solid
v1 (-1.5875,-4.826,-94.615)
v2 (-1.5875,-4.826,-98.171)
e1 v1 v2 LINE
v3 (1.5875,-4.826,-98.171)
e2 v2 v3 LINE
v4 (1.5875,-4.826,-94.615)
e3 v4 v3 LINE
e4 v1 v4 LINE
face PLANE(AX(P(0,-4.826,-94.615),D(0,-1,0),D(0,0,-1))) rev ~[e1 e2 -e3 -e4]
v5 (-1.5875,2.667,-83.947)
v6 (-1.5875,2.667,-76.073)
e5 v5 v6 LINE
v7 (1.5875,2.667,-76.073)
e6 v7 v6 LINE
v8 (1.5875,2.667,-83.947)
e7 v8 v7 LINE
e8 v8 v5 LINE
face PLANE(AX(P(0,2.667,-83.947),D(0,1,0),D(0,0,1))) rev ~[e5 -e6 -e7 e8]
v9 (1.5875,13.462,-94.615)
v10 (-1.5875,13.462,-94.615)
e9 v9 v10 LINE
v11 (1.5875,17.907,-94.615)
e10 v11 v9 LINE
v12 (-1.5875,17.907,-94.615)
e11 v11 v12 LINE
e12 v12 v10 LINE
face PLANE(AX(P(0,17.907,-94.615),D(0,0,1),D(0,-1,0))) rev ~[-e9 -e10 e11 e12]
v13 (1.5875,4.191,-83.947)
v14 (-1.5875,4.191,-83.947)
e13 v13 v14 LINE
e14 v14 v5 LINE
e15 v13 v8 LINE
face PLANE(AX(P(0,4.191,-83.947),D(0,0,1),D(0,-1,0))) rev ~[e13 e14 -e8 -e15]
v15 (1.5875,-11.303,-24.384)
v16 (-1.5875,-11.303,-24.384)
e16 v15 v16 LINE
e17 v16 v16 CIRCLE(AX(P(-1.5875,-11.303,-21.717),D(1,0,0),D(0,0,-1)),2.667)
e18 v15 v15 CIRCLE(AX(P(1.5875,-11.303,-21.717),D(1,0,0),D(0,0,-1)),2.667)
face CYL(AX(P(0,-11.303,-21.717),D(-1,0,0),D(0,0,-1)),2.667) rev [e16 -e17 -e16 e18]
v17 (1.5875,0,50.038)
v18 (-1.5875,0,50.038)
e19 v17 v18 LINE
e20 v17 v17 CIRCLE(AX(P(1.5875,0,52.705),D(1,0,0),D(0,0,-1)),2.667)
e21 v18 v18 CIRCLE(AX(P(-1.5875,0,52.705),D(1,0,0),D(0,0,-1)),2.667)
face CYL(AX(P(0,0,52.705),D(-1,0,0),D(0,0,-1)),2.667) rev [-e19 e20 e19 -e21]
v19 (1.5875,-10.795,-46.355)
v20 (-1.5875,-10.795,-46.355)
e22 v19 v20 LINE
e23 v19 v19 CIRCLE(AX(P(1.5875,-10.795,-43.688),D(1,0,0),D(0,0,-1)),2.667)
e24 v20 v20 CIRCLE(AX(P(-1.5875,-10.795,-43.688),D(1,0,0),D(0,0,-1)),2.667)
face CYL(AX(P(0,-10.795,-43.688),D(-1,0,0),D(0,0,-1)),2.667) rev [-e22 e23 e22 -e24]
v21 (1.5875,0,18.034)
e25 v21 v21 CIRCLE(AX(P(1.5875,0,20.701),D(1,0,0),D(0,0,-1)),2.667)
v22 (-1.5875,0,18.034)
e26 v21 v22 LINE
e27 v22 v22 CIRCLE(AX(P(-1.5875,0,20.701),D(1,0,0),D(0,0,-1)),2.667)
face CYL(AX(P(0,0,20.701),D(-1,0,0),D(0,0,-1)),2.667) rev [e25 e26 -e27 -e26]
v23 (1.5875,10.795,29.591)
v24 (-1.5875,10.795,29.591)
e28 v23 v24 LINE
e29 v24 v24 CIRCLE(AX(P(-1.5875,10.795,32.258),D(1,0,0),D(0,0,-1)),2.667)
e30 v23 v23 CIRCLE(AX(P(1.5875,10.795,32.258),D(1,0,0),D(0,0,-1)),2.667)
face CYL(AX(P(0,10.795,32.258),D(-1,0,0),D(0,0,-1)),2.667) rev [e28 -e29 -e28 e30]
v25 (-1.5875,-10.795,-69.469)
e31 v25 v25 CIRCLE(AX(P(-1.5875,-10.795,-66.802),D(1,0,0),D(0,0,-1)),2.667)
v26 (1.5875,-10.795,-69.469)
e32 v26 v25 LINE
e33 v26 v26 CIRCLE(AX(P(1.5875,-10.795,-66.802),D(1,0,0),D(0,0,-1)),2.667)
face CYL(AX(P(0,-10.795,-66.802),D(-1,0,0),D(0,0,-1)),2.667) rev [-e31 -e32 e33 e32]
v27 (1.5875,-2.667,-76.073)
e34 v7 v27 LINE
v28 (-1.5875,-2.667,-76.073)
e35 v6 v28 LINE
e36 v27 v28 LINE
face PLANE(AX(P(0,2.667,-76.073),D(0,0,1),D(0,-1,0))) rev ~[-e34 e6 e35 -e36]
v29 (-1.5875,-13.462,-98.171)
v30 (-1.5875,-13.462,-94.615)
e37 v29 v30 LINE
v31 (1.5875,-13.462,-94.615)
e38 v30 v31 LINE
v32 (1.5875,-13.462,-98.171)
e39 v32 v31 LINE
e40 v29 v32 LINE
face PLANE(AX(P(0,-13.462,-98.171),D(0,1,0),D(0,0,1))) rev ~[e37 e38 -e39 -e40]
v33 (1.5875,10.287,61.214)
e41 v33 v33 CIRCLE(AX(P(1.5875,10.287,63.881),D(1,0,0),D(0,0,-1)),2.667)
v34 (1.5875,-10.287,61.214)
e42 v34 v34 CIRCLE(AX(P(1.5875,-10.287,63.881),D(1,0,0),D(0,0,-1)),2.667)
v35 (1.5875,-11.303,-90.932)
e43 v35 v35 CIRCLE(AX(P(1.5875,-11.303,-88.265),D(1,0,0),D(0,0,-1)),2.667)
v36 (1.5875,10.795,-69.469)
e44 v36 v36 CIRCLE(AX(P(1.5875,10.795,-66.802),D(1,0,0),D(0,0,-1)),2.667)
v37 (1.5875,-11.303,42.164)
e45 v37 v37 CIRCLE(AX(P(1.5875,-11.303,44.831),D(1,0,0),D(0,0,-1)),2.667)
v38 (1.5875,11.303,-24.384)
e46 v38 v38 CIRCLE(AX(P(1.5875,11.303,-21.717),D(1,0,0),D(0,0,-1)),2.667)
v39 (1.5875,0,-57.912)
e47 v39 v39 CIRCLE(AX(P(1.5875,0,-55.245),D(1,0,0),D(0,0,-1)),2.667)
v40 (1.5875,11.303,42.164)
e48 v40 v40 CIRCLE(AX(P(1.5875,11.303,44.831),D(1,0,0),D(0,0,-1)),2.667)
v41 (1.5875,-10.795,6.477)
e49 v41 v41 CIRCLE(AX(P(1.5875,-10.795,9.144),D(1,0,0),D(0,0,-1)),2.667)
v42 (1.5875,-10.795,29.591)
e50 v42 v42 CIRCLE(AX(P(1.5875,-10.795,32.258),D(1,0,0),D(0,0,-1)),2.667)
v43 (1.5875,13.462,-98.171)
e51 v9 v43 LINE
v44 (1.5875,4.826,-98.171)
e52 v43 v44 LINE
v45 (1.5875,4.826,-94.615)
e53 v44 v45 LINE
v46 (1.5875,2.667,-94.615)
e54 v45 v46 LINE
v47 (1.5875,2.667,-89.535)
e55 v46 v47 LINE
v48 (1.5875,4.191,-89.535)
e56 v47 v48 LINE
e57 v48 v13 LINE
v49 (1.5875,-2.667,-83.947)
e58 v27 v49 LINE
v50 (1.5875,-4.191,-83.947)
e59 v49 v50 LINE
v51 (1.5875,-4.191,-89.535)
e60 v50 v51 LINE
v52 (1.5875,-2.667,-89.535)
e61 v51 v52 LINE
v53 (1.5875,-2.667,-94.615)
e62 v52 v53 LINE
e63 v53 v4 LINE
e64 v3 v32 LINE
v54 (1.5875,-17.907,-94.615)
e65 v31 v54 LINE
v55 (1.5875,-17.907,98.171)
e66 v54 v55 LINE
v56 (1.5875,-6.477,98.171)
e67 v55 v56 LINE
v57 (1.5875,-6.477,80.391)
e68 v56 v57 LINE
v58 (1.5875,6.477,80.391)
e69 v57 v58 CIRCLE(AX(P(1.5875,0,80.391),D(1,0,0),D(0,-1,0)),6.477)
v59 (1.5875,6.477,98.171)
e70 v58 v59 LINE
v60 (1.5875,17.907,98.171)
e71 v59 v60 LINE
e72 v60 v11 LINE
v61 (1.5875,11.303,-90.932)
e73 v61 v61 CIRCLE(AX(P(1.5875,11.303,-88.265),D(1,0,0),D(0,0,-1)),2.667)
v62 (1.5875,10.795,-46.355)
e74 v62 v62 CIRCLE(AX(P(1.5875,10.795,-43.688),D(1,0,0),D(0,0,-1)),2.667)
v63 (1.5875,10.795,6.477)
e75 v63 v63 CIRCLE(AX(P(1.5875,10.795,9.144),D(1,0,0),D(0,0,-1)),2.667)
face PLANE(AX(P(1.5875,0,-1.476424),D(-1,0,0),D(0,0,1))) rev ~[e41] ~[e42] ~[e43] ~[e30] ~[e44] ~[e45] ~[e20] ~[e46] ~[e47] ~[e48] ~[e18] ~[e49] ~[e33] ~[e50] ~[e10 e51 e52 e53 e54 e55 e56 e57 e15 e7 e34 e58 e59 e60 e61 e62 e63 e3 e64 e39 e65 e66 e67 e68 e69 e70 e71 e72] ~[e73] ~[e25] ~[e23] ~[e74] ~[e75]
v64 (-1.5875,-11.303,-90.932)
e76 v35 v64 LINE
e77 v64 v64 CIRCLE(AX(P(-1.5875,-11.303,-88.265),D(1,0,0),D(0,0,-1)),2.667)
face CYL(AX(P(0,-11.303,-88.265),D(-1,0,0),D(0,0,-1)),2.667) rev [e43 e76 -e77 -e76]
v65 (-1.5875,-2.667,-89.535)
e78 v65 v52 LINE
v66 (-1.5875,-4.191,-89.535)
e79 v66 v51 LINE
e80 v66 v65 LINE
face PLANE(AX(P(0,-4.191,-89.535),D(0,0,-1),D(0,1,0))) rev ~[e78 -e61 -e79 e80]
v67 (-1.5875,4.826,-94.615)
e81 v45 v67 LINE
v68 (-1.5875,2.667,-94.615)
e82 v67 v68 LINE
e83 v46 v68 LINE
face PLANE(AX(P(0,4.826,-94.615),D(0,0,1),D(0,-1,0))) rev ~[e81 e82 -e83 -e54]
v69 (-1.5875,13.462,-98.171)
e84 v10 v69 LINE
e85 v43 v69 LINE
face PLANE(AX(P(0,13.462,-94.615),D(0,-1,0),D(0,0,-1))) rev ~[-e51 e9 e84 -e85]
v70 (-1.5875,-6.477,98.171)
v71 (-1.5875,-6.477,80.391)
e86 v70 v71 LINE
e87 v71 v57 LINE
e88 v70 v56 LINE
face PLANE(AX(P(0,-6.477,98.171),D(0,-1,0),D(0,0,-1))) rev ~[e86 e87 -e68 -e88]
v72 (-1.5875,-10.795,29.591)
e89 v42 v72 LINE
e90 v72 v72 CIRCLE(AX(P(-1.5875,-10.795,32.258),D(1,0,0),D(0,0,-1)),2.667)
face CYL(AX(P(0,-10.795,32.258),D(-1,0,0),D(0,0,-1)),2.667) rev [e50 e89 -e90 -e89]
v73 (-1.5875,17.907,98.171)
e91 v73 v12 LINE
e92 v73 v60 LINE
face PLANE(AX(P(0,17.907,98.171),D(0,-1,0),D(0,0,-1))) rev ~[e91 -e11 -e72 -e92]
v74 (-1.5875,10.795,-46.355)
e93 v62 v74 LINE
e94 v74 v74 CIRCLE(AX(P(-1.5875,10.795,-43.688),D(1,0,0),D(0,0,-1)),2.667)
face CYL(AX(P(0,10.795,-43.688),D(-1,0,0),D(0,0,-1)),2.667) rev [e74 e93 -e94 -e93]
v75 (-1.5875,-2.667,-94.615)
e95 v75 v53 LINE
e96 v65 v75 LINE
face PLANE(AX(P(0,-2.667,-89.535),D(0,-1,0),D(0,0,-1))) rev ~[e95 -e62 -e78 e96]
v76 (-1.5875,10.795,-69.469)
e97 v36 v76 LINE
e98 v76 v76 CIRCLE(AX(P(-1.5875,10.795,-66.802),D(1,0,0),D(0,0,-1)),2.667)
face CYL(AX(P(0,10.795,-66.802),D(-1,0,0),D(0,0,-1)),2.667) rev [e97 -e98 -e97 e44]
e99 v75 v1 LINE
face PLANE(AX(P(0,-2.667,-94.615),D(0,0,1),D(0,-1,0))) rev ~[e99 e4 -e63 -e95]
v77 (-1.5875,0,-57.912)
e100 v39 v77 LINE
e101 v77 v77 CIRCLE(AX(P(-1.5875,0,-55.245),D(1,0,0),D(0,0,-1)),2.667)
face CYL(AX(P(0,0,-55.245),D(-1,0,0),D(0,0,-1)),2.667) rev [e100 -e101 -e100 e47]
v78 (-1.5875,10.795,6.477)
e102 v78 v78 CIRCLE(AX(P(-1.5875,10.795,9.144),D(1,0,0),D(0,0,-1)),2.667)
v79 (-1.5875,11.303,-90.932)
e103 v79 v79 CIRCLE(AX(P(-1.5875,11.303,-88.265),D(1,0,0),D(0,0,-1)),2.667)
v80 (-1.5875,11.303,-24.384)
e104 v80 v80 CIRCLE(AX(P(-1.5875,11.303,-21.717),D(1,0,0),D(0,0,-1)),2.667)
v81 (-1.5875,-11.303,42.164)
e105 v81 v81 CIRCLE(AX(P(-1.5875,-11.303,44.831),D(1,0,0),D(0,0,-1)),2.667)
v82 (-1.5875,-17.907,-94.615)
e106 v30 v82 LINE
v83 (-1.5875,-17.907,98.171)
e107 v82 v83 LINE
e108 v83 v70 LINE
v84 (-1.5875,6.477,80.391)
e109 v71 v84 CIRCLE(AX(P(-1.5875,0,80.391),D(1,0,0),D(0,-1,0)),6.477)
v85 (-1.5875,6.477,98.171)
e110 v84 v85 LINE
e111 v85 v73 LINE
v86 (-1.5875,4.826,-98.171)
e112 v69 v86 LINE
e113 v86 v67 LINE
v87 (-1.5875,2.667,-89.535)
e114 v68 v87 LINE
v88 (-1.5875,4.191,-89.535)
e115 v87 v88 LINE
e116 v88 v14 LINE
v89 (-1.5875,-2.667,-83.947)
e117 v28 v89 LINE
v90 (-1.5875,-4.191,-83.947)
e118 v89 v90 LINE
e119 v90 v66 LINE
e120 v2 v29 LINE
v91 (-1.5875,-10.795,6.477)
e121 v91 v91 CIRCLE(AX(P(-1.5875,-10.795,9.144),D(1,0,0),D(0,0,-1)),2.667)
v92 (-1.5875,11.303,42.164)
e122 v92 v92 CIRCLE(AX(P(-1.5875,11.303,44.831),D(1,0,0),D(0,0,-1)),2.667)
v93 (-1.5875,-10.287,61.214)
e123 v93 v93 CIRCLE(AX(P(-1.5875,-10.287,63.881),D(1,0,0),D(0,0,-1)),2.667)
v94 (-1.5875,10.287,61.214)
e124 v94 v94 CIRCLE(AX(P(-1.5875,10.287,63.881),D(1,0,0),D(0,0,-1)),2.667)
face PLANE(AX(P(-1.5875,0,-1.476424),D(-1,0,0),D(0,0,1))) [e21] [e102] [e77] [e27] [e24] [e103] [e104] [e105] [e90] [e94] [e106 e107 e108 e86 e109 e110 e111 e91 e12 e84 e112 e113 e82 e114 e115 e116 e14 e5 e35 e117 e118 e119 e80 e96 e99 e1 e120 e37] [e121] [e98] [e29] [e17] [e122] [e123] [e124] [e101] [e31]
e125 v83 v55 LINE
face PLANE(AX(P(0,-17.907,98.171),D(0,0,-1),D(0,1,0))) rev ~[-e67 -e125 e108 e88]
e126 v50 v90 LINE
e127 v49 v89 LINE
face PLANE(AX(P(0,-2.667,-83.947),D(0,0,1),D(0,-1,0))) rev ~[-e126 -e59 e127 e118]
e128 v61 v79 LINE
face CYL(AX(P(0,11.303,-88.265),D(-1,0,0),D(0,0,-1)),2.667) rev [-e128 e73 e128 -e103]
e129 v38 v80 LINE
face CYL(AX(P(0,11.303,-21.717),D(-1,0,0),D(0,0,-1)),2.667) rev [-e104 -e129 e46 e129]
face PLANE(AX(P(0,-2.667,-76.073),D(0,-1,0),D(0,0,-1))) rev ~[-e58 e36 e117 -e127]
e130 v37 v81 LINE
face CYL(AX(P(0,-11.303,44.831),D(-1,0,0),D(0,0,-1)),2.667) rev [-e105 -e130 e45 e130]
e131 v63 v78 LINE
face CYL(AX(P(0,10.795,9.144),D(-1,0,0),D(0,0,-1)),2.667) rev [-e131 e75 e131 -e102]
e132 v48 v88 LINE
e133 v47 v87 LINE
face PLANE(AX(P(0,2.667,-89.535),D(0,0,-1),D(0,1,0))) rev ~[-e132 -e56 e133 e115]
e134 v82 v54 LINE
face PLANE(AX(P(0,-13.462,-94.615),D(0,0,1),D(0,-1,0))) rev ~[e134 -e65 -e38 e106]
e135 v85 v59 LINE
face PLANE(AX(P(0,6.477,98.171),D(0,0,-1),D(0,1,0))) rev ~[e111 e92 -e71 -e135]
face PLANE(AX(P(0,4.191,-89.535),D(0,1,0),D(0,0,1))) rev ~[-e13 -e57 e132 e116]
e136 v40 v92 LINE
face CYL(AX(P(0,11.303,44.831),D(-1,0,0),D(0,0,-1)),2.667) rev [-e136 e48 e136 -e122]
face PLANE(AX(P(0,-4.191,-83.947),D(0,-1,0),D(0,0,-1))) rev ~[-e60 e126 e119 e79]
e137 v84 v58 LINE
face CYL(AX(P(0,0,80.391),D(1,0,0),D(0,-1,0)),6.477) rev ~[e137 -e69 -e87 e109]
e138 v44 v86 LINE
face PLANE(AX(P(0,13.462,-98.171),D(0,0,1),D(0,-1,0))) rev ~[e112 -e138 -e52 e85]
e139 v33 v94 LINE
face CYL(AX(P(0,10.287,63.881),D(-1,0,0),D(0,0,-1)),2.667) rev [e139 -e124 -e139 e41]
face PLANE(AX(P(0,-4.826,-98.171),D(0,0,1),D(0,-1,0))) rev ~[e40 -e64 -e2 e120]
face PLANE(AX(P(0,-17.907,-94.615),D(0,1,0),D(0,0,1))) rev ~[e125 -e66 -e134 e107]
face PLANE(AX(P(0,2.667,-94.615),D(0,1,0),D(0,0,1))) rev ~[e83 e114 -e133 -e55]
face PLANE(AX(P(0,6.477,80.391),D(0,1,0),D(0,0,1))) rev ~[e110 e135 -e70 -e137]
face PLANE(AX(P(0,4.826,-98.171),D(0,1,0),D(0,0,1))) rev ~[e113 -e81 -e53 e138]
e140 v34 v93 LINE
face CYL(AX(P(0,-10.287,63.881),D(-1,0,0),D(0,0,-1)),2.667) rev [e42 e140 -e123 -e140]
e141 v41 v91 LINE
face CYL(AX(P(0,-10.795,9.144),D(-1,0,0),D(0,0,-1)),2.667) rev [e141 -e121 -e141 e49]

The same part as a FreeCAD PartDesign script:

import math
import FreeCAD as App
import Part
import Sketcher
Q = App.Units.Quantity

doc = App.newDocument("Part")
body = doc.addObject("PartDesign::Body", "Body")

sketch1 = doc.addObject("Sketcher::SketchObject", "Sketch")
body.addObject(sketch1)
sketch1.AttachmentSupport = (doc.YZ_Plane, [""])
sketch1.MapMode = "FlatFace"
sketch1.addGeometry([
    Part.LineSegment(App.Vector(17.907, -94.615, 0), App.Vector(17.907, 98.171, 0)),
    Part.LineSegment(App.Vector(17.907, 98.171, 0), App.Vector(6.477, 98.171, 0)),
    Part.LineSegment(App.Vector(6.477, 98.171, 0), App.Vector(6.477, 80.391, 0)),
    Part.ArcOfCircle(Part.Circle(App.Vector(0, 80.391, 0), App.Vector(0, 0, 1), 6.477), math.radians(180), math.radians(360)),
    Part.LineSegment(App.Vector(-6.477, 80.391, 0), App.Vector(-6.477, 98.171, 0)),
    Part.LineSegment(App.Vector(-6.477, 98.171, 0), App.Vector(-17.907, 98.171, 0)),
    Part.LineSegment(App.Vector(-17.907, 98.171, 0), App.Vector(-17.907, -94.615, 0)),
    Part.LineSegment(App.Vector(-17.907, -94.615, 0), App.Vector(-13.462, -94.615, 0)),
    Part.LineSegment(App.Vector(-13.462, -94.615, 0), App.Vector(-13.462, -98.171, 0)),
    Part.LineSegment(App.Vector(-13.462, -98.171, 0), App.Vector(-4.826, -98.171, 0)),
    Part.LineSegment(App.Vector(-4.826, -98.171, 0), App.Vector(-4.826, -94.615, 0)),
    Part.LineSegment(App.Vector(-4.826, -94.615, 0), App.Vector(-2.667, -94.615, 0)),
    Part.LineSegment(App.Vector(-2.667, -94.615, 0), App.Vector(-2.667, -89.535, 0)),
    Part.LineSegment(App.Vector(-2.667, -89.535, 0), App.Vector(-4.191, -89.535, 0)),
    Part.LineSegment(App.Vector(-4.191, -89.535, 0), App.Vector(-4.191, -83.947, 0)),
    Part.LineSegment(App.Vector(-4.191, -83.947, 0), App.Vector(-2.667, -83.947, 0)),
    Part.LineSegment(App.Vector(-2.667, -83.947, 0), App.Vector(-2.667, -76.073, 0)),
    Part.LineSegment(App.Vector(-2.667, -76.073, 0), App.Vector(2.667, -76.073, 0)),
    Part.LineSegment(App.Vector(2.667, -76.073, 0), App.Vector(2.667, -83.947, 0)),
    Part.LineSegment(App.Vector(2.667, -83.947, 0), App.Vector(4.191, -83.947, 0)),
    Part.LineSegment(App.Vector(4.191, -83.947, 0), App.Vector(4.191, -89.535, 0)),
    Part.LineSegment(App.Vector(4.191, -89.535, 0), App.Vector(2.667, -89.535, 0)),
    Part.LineSegment(App.Vector(2.667, -89.535, 0), App.Vector(2.667, -94.615, 0)),
    Part.LineSegment(App.Vector(2.667, -94.615, 0), App.Vector(4.826, -94.615, 0)),
    Part.LineSegment(App.Vector(4.826, -94.615, 0), App.Vector(4.826, -98.171, 0)),
    Part.LineSegment(App.Vector(4.826, -98.171, 0), App.Vector(13.462, -98.171, 0)),
    Part.LineSegment(App.Vector(13.462, -98.171, 0), App.Vector(13.462, -94.615, 0)),
    Part.LineSegment(App.Vector(13.462, -94.615, 0), App.Vector(17.907, -94.615, 0)),
    Part.Circle(App.Vector(-11.303, -88.265, 0), App.Vector(0, 0, 1), 2.667),
    Part.Circle(App.Vector(-10.795, -66.802, 0), App.Vector(0, 0, 1), 2.667),
    Part.Circle(App.Vector(-10.795, -43.688, 0), App.Vector(0, 0, 1), 2.667),
    Part.Circle(App.Vector(-11.303, -21.717, 0), App.Vector(0, 0, 1), 2.667),
    Part.Circle(App.Vector(-10.795, 9.144, 0), App.Vector(0, 0, 1), 2.667),
    Part.Circle(App.Vector(-10.795, 32.258, 0), App.Vector(0, 0, 1), 2.667),
    Part.Circle(App.Vector(-11.303, 44.831, 0), App.Vector(0, 0, 1), 2.667),
    Part.Circle(App.Vector(-10.287, 63.881, 0), App.Vector(0, 0, 1), 2.667),
    Part.Circle(App.Vector(0, -55.245, 0), App.Vector(0, 0, 1), 2.667),
    Part.Circle(App.Vector(11.303, -88.265, 0), App.Vector(0, 0, 1), 2.667),
    Part.Circle(App.Vector(10.795, -66.802, 0), App.Vector(0, 0, 1), 2.667),
    Part.Circle(App.Vector(10.795, -43.688, 0), App.Vector(0, 0, 1), 2.667),
    Part.Circle(App.Vector(11.303, -21.717, 0), App.Vector(0, 0, 1), 2.667),
    Part.Circle(App.Vector(0, 20.701, 0), App.Vector(0, 0, 1), 2.667),
    Part.Circle(App.Vector(0, 52.705, 0), App.Vector(0, 0, 1), 2.667),
    Part.Circle(App.Vector(10.795, 9.144, 0), App.Vector(0, 0, 1), 2.667),
    Part.Circle(App.Vector(10.287, 63.881, 0), App.Vector(0, 0, 1), 2.667),
    Part.Circle(App.Vector(10.795, 32.258, 0), App.Vector(0, 0, 1), 2.667),
    Part.Circle(App.Vector(11.303, 44.831, 0), App.Vector(0, 0, 1), 2.667),
], False)
sketch1.addConstraint([
    Sketcher.Constraint("Coincident", 0, 2, 1, 1),
    Sketcher.Constraint("Coincident", 1, 2, 2, 1),
    Sketcher.Constraint("Tangent", 2, 2, 3, 2),
    Sketcher.Constraint("Tangent", 3, 1, 4, 1),
    Sketcher.Constraint("Coincident", 4, 2, 5, 1),
    Sketcher.Constraint("Coincident", 5, 2, 6, 1),
    Sketcher.Constraint("Coincident", 6, 2, 7, 1),
    Sketcher.Constraint("Coincident", 7, 2, 8, 1),
    Sketcher.Constraint("Coincident", 8, 2, 9, 1),
    Sketcher.Constraint("Coincident", 9, 2, 10, 1),
    Sketcher.Constraint("Coincident", 10, 2, 11, 1),
    Sketcher.Constraint("Coincident", 11, 2, 12, 1),
    Sketcher.Constraint("Coincident", 12, 2, 13, 1),
    Sketcher.Constraint("Coincident", 13, 2, 14, 1),
    Sketcher.Constraint("Coincident", 14, 2, 15, 1),
    Sketcher.Constraint("Coincident", 15, 2, 16, 1),
    Sketcher.Constraint("Coincident", 16, 2, 17, 1),
    Sketcher.Constraint("Coincident", 17, 2, 18, 1),
    Sketcher.Constraint("Coincident", 18, 2, 19, 1),
    Sketcher.Constraint("Coincident", 19, 2, 20, 1),
    Sketcher.Constraint("Coincident", 20, 2, 21, 1),
    Sketcher.Constraint("Coincident", 21, 2, 22, 1),
    Sketcher.Constraint("Coincident", 22, 2, 23, 1),
    Sketcher.Constraint("Coincident", 23, 2, 24, 1),
    Sketcher.Constraint("Coincident", 24, 2, 25, 1),
    Sketcher.Constraint("Coincident", 25, 2, 26, 1),
    Sketcher.Constraint("Coincident", 26, 2, 27, 1),
    Sketcher.Constraint("Coincident", 27, 2, 0, 1),
    Sketcher.Constraint("Vertical", 0),
    Sketcher.Constraint("Horizontal", 1),
    Sketcher.Constraint("Vertical", 2),
    Sketcher.Constraint("Vertical", 4),
    Sketcher.Constraint("Horizontal", 5),
    Sketcher.Constraint("Vertical", 6),
    Sketcher.Constraint("Horizontal", 7),
    Sketcher.Constraint("Vertical", 8),
    Sketcher.Constraint("Horizontal", 9),
    Sketcher.Constraint("Vertical", 10),
    Sketcher.Constraint("Horizontal", 11),
    Sketcher.Constraint("Vertical", 12),
    Sketcher.Constraint("Horizontal", 13),
    Sketcher.Constraint("Vertical", 14),
    Sketcher.Constraint("Horizontal", 15),
    Sketcher.Constraint("Vertical", 16),
    Sketcher.Constraint("Horizontal", 17),
    Sketcher.Constraint("Vertical", 18),
    Sketcher.Constraint("Horizontal", 19),
    Sketcher.Constraint("Vertical", 20),
    Sketcher.Constraint("Horizontal", 21),
    Sketcher.Constraint("Vertical", 22),
    Sketcher.Constraint("Horizontal", 23),
    Sketcher.Constraint("Vertical", 24),
    Sketcher.Constraint("Horizontal", 25),
    Sketcher.Constraint("Vertical", 26),
    Sketcher.Constraint("Horizontal", 27),
    Sketcher.Constraint("Equal", 28, 29),
    Sketcher.Constraint("Equal", 29, 30),
    Sketcher.Constraint("Equal", 30, 31),
    Sketcher.Constraint("Equal", 31, 32),
    Sketcher.Constraint("Equal", 32, 33),
    Sketcher.Constraint("Equal", 33, 34),
    Sketcher.Constraint("Equal", 34, 35),
    Sketcher.Constraint("Equal", 35, 36),
    Sketcher.Constraint("Equal", 36, 37),
    Sketcher.Constraint("Equal", 37, 38),
    Sketcher.Constraint("Equal", 38, 39),
    Sketcher.Constraint("Equal", 39, 40),
    Sketcher.Constraint("Equal", 40, 41),
    Sketcher.Constraint("Equal", 41, 42),
    Sketcher.Constraint("Equal", 42, 43),
    Sketcher.Constraint("Equal", 43, 44),
    Sketcher.Constraint("Equal", 44, 45),
    Sketcher.Constraint("Equal", 45, 46),
    Sketcher.Constraint("Symmetric", 28, 3, 37, 3, -2),
    Sketcher.Constraint("Symmetric", 29, 3, 38, 3, -2),
    Sketcher.Constraint("Symmetric", 30, 3, 39, 3, -2),
    Sketcher.Constraint("Symmetric", 31, 3, 40, 3, -2),
    Sketcher.Constraint("Symmetric", 32, 3, 43, 3, -2),
    Sketcher.Constraint("Symmetric", 35, 3, 44, 3, -2),
    Sketcher.Constraint("Symmetric", 33, 3, 45, 3, -2),
    Sketcher.Constraint("Symmetric", 34, 3, 46, 3, -2),
    Sketcher.Constraint("Symmetric", 1, 2, 4, 2, -2),
    Sketcher.Constraint("Symmetric", 15, 2, 18, 2, -2),
    Sketcher.Constraint("Symmetric", 13, 2, 20, 2, -2),
    Sketcher.Constraint("Symmetric", 11, 2, 22, 2, -2),
    Sketcher.Constraint("Symmetric", 9, 2, 24, 2, -2),
    Sketcher.Constraint("Symmetric", 7, 2, 26, 2, -2),
    Sketcher.Constraint("PointOnObject", 36, 3, -2),
    Sketcher.Constraint("PointOnObject", 41, 3, -2),
    Sketcher.Constraint("PointOnObject", 42, 3, -2),
    Sketcher.Constraint("Horizontal", 7, 2, 10, 2),
    Sketcher.Constraint("Vertical", 29, 3, 30, 3),
    Sketcher.Constraint("Vertical", 28, 3, 31, 3),
    Sketcher.Constraint("Vertical", 30, 3, 32, 3),
    Sketcher.Constraint("Vertical", 32, 3, 33, 3),
    Sketcher.Constraint("Vertical", 31, 3, 34, 3),
    Sketcher.Constraint("Vertical", 12, 2, 15, 2),
    Sketcher.Constraint("Equal", 1, 5),
    Sketcher.Constraint("Diameter", 28, Q("0.21 in")),
    Sketcher.Constraint("DistanceY", 2, 2, 2, 1, Q("0.7 in")),
    Sketcher.Constraint("DistanceY", 12, 1, 12, 2, Q("0.2 in")),
    Sketcher.Constraint("Radius", 3, Q("0.255 in")),
    Sketcher.Constraint("DistanceX", 1, 2, 1, 1, Q("0.45 in")),
    Sketcher.Constraint("DistanceX", 9, 1, 9, 2, Q("0.34 in")),
    Sketcher.Constraint("DistanceX", 13, 2, 13, 1, Q("0.06 in")),
    Sketcher.Constraint("DistanceX", 17, 1, 17, 2, Q("0.21 in")),
    Sketcher.Constraint("DistanceY", 0, 1, 0, 2, Q("7.59 in")),
    Sketcher.Constraint("DistanceY", 8, 2, 8, 1, Q("0.14 in")),
    Sketcher.Constraint("DistanceY", 14, 1, 14, 2, Q("0.22 in")),
    Sketcher.Constraint("DistanceY", 16, 1, 16, 2, Q("0.31 in")),
    Sketcher.Constraint("DistanceY", 29, 3, 33, 3, Q("3.9 in")),
    Sketcher.Constraint("DistanceY", 34, 3, 3, 3, Q("1.4 in")),
    Sketcher.Constraint("DistanceY", 28, 3, 36, 3, Q("1.3 in")),
    Sketcher.Constraint("DistanceX", 44, 3, 0, 2, Q("0.3 in")),
    Sketcher.Constraint("DistanceX", 7, 1, 7, 2, Q("0.175 in")),
    Sketcher.Constraint("DistanceY", 29, 3, -1, 1, Q("2.63 in")),
    Sketcher.Constraint("DistanceY", 30, 3, -1, 1, Q("1.72 in")),
    Sketcher.Constraint("DistanceY", -1, 1, 32, 3, Q("0.36 in")),
    Sketcher.Constraint("DistanceY", 28, 3, 3, 3, Q("6.64 in")),
    Sketcher.Constraint("DistanceX", 28, 3, 29, 3, Q("0.02 in")),
    Sketcher.Constraint("DistanceY", 28, 3, 31, 3, Q("2.62 in")),
    Sketcher.Constraint("DistanceX", 34, 3, 35, 3, Q("0.04 in")),
    Sketcher.Constraint("DistanceY", 34, 3, 35, 3, Q("0.75 in")),
    Sketcher.Constraint("DistanceY", 41, 3, 34, 3, Q("0.95 in")),
    Sketcher.Constraint("DistanceY", 34, 3, 42, 3, Q("0.31 in")),
    Sketcher.Constraint("DistanceY", -1, 1, 3, 3, Q("3.165 in")),
])
pad1 = doc.addObject("PartDesign::Pad", "Pad")
body.addObject(pad1)
pad1.Profile = sketch1
pad1.Length = Q("0.125 in")
pad1.Midplane = True

doc.recompute()
